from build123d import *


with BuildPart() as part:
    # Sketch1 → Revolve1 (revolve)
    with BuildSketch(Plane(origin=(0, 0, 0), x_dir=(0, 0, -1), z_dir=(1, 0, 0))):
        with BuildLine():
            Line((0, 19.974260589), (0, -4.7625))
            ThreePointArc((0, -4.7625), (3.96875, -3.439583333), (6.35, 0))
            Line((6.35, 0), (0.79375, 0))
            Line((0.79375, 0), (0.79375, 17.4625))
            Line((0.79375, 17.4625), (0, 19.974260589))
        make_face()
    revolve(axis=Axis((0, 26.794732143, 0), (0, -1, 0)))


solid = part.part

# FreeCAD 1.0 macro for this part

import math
import FreeCAD as App
import Part
import Sketcher
from FreeCAD import Vector
Q = App.Units.Quantity

doc = App.newDocument("Part")
body = doc.addObject("PartDesign::Body", "Body")

sketch1 = body.newObject("Sketcher::SketchObject", "Sketch")
sketch1.AttachmentSupport = (doc.getObject("YZ_Plane"), [""])
sketch1.MapMode = "FlatFace"
sketch1.addGeometry([
    Part.LineSegment(Vector(20, 0, 0), Vector(-4.8, 0, 0)),
    Part.ArcOfCircle(Part.Circle(Vector(1.9, 0, 0), Vector(0, 0, 1), 6.6), math.radians(-180), math.radians(-106)),
    Part.LineSegment(Vector(0, -6.3, 0), Vector(0, -0.8, 0)),
    Part.LineSegment(Vector(0, -0.8, 0), Vector(17.5, -0.8, 0)),
    Part.LineSegment(Vector(17.5, -0.8, 0), Vector(20, 0, 0)),
], False)
sketch1.addConstraint([
    Sketcher.Constraint("Coincident", 0, 2, 1, 1),
    Sketcher.Constraint("Coincident", 1, 2, 2, 1),
    Sketcher.Constraint("Coincident", 2, 2, 3, 1),
    Sketcher.Constraint("Coincident", 3, 2, 4, 1),
    Sketcher.Constraint("Coincident", 4, 2, 0, 1),
    Sketcher.Constraint("Horizontal", 0),
    Sketcher.Constraint("Vertical", 2),
    Sketcher.Constraint("Horizontal", 3),
    Sketcher.Constraint("PointOnObject", 1, 3, -1),
    Sketcher.Constraint("PointOnObject", 0, 2, -1),
    Sketcher.Constraint("PointOnObject", 1, 2, -2),
    Sketcher.Constraint("DistanceX", 3, 1, 3, 2, Q("0.6875 in")),
    Sketcher.Constraint("DistanceY", 2, 1, 2, 2, Q("0.21875 in")),
    Sketcher.Constraint("DistanceY", 1, 2, -1, 1, Q("0.25 in")),
    Sketcher.Constraint("DistanceX", 0, 2, -1, 1, Q("0.1875 in")),
    Sketcher.Constraint("DistanceX", 0, 2, 0, 1, Q("24.736761 mm")),
])
revolution = body.newObject("PartDesign::Revolution", "Revolution")
revolution.Profile = sketch1
revolution.ReferenceAxis = (sketch1, ["H_Axis"])
revolution.Angle = 360

doc.recompute()
